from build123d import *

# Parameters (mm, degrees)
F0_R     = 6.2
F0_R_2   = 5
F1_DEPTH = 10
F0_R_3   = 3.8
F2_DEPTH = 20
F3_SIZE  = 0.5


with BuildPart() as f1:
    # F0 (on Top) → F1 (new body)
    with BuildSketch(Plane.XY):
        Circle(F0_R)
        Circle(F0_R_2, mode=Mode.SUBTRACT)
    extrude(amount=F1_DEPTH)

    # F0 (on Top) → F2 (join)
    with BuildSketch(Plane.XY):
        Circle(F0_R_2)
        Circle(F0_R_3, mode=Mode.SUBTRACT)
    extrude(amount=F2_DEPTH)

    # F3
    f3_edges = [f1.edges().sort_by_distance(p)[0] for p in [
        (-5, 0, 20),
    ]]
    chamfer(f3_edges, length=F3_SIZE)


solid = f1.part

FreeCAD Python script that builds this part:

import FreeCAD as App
import Part
import Sketcher
Q = App.Units.Quantity


def edges_at(feature, points):
    """Names of the edges that pass closest to the given points."""
    edges = feature.Shape.Edges
    near = lambda p: min(range(len(edges)), key=lambda i: edges[i].distToShape(Part.Vertex(*p))[0])
    return sorted({f"Edge{near(p) + 1}" for p in points})

doc = App.newDocument("Part")
body = doc.addObject("PartDesign::Body", "Body")

sketch1 = body.newObject("Sketcher::SketchObject", "Sketch")
sketch1.AttachmentSupport = (doc.getObject("XY_Plane"), [""])
sketch1.MapMode = "FlatFace"
sketch1.addGeometry(Part.Circle(App.Vector(0, 0, 0), App.Vector(0, 0, 1), 6), False)
sketch1.addGeometry(Part.Circle(App.Vector(0, 0, 0), App.Vector(0, 0, 1), 5), False)
sketch1.addConstraint(Sketcher.Constraint("Coincident", 0, 3, -1, 1))
sketch1.addConstraint(Sketcher.Constraint("Coincident", 1, 3, -1, 1))
sketch1.addConstraint(Sketcher.Constraint("Diameter", 1, Q("10 mm")))
sketch1.addConstraint(Sketcher.Constraint("Diameter", 0, Q("12.4 mm")))
pad1 = body.newObject("PartDesign::Pad", "Pad")
pad1.Profile = sketch1
pad1.Length = 10

sketch2 = body.newObject("Sketcher::SketchObject", "Sketch001")
sketch2.AttachmentSupport = (doc.getObject("XY_Plane"), [""])
sketch2.MapMode = "FlatFace"
sketch2.addGeometry(Part.Circle(App.Vector(0, 0, 0), App.Vector(0, 0, 1), 5), False)
sketch2.addGeometry(Part.Circle(App.Vector(0, 0, 0), App.Vector(0, 0, 1), 3.8), False)
sketch2.addConstraint(Sketcher.Constraint("Coincident", 0, 3, -1, 1))
sketch2.addConstraint(Sketcher.Constraint("Coincident", 1, 3, -1, 1))
sketch2.addConstraint(Sketcher.Constraint("Diameter", 0, Q("10 mm")))
sketch2.addConstraint(Sketcher.Constraint("Diameter", 1, Q("7.6 mm")))
pad2 = body.newObject("PartDesign::Pad", "Pad001")
pad2.Profile = sketch2
pad2.Length = 20
doc.recompute()

chamfer = body.newObject("PartDesign::Chamfer", "Chamfer")
chamfer.Base = (pad2, edges_at(pad2, [(-5, 0, 20)]))
chamfer.Size = 0.5

doc.recompute()
